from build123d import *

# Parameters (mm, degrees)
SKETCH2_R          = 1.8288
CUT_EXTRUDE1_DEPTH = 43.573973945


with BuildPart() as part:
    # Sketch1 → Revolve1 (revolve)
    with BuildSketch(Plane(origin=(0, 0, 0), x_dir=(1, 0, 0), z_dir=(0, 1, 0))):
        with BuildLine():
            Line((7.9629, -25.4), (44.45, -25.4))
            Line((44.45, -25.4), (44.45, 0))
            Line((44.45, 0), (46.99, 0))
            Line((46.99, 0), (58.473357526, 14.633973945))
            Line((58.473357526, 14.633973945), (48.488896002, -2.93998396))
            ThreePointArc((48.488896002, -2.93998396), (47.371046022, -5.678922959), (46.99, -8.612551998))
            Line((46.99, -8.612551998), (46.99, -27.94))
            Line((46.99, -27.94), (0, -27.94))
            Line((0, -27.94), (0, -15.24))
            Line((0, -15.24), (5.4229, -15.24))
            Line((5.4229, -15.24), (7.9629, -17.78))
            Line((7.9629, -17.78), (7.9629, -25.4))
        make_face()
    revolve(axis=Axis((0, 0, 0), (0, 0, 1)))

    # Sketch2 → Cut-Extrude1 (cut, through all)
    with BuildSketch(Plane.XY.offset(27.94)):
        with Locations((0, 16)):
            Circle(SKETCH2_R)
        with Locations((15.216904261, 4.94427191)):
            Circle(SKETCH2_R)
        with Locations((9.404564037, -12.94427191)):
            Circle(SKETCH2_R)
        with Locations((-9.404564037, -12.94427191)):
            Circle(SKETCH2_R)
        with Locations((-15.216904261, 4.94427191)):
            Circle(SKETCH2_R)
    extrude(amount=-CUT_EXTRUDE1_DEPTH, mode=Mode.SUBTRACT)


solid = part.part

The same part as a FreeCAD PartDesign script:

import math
import FreeCAD as App
import Part
import Sketcher
Q = App.Units.Quantity

doc = App.newDocument("Part")
body = doc.addObject("PartDesign::Body", "Body")

sketch1 = body.newObject("Sketcher::SketchObject", "Sketch")
sketch1.AttachmentSupport = (doc.getObject("XZ_Plane"), [""])
sketch1.MapMode = "FlatFace"
sketch1.addGeometry([
    Part.LineSegment(App.Vector(44.5, 25.4, 0), App.Vector(8, 25.4, 0)),
    Part.LineSegment(App.Vector(8, 25.4, 0), App.Vector(8, 17.8, 0)),
    Part.LineSegment(App.Vector(8, 17.8, 0), App.Vector(5.4, 15.2, 0)),
    Part.LineSegment(App.Vector(5.4, 15.2, 0), App.Vector(0, 15.2, 0)),
    Part.LineSegment(App.Vector(0, 15.2, 0), App.Vector(0, 27.9, 0)),
    Part.LineSegment(App.Vector(0, 27.9, 0), App.Vector(47, 27.9, 0)),
    Part.LineSegment(App.Vector(47, 27.9, 0), App.Vector(47, 8.6, 0)),
    Part.ArcOfCircle(Part.Circle(App.Vector(58.5, 8.6, 0), App.Vector(0, 0, 1), 11.5), math.radians(180), math.radians(210)),
    Part.LineSegment(App.Vector(48.5, 2.9, 0), App.Vector(58.5, -14.6, 0)),
    Part.LineSegment(App.Vector(58.5, -14.6, 0), App.Vector(47, 0, 0)),
    Part.LineSegment(App.Vector(47, 0, 0), App.Vector(44.5, 0, 0)),
    Part.LineSegment(App.Vector(44.5, 0, 0), App.Vector(44.5, 25.4, 0)),
], False)
sketch1.addConstraint([
    Sketcher.Constraint("Coincident", 0, 2, 1, 1),
    Sketcher.Constraint("Coincident", 1, 2, 2, 1),
    Sketcher.Constraint("Coincident", 2, 2, 3, 1),
    Sketcher.Constraint("Coincident", 3, 2, 4, 1),
    Sketcher.Constraint("Coincident", 4, 2, 5, 1),
    Sketcher.Constraint("Coincident", 5, 2, 6, 1),
    Sketcher.Constraint("Tangent", 6, 2, 7, 1),
    Sketcher.Constraint("Tangent", 7, 2, 8, 1),
    Sketcher.Constraint("Coincident", 8, 2, 9, 1),
    Sketcher.Constraint("Coincident", 9, 2, 10, 1),
    Sketcher.Constraint("Coincident", 10, 2, 11, 1),
    Sketcher.Constraint("Coincident", 11, 2, 0, 1),
    Sketcher.Constraint("Horizontal", 0),
    Sketcher.Constraint("Vertical", 1),
    Sketcher.Constraint("Horizontal", 3),
    Sketcher.Constraint("Vertical", 4),
    Sketcher.Constraint("Horizontal", 5),
    Sketcher.Constraint("Vertical", 6),
    Sketcher.Constraint("Horizontal", 10),
    Sketcher.Constraint("Vertical", 11),
    Sketcher.Constraint("PointOnObject", 3, 2, -2),
    Sketcher.Constraint("PointOnObject", 9, 2, -1),
    Sketcher.Constraint("Vertical", 7, 3, 8, 2),
    Sketcher.Constraint("Vertical", 6, 2, 9, 2),
    Sketcher.Constraint("DistanceY", 11, 1, 11, 2, Q("1 in")),
    Sketcher.Constraint("DistanceX", 10, 2, 10, 1, Q("0.1 in")),
    Sketcher.Constraint("DistanceY", 1, 2, 1, 1, Q("0.3 in")),
    Sketcher.Constraint("DistanceY", 4, 1, 4, 2, Q("0.5 in")),
    Sketcher.Constraint("Angle", 2, Q("-135 deg")),
    Sketcher.Constraint("DistanceX", 5, 1, 5, 2, Q("1.85 in")),
    Sketcher.Constraint("DistanceY", -1, 1, 2, 2, Q("0.6 in")),
    Sketcher.Constraint("DistanceX", 0, 2, 0, 1, Q("1.4365 in")),
    Sketcher.Constraint("Radius", 7, Q("11.483358 mm")),
    Sketcher.Constraint("DistanceY", 6, 2, 6, 1, Q("19.327448 mm")),
    Sketcher.Constraint("Distance", 8, Q("20.212211 mm")),
])
revolution = body.newObject("PartDesign::Revolution", "Revolution")
revolution.Profile = sketch1
revolution.ReferenceAxis = (sketch1, ["V_Axis"])
revolution.Angle = 360

sketch2 = body.newObject("Sketcher::SketchObject", "Sketch001")
sketch2.AttachmentSupport = (doc.getObject("XY_Plane"), [""])
sketch2.MapMode = "FlatFace"
sketch2.AttachmentOffset = App.Placement(App.Vector(0, 0, 1.1 * 25.4), App.Rotation())
sketch2.addGeometry([
    Part.Circle(App.Vector(0, 16, 0), App.Vector(0, 0, 1), 1.8),
    Part.Circle(App.Vector(15.2, 4.9, 0), App.Vector(0, 0, 1), 1.8),
    Part.Circle(App.Vector(9.4, -12.9, 0), App.Vector(0, 0, 1), 1.8),
    Part.Circle(App.Vector(-9.4, -12.9, 0), App.Vector(0, 0, 1), 1.8),
    Part.Circle(App.Vector(-15.2, 4.9, 0), App.Vector(0, 0, 1), 1.8),
], False)
sketch2.addConstraint([
    Sketcher.Constraint("Equal", 0, 1),
    Sketcher.Constraint("Equal", 1, 2),
    Sketcher.Constraint("Equal", 2, 3),
    Sketcher.Constraint("Equal", 3, 4),
    Sketcher.Constraint("Symmetric", 2, 3, 3, 3, -2),
    Sketcher.Constraint("Symmetric", 1, 3, 4, 3, -2),
    Sketcher.Constraint("PointOnObject", 0, 3, -2),
    Sketcher.Constraint("Diameter", 0, Q("0.144 in")),
    Sketcher.Constraint("DistanceY", -1, 1, 0, 3, Q("16 mm")),
    Sketcher.Constraint("DistanceY", -1, 1, 1, 3, Q("4.944272 mm")),
    Sketcher.Constraint("DistanceY", 2, 3, -1, 1, Q("12.944272 mm")),
    Sketcher.Constraint("DistanceX", 2, 3, 1, 3, Q("5.81234 mm")),
    Sketcher.Constraint("DistanceX", 3, 3, 2, 3, Q("18.809128 mm")),
])
pocket1 = body.newObject("PartDesign::Pocket", "Pocket")
pocket1.Profile = sketch2
pocket1.Type = "ThroughAll"

doc.recompute()
